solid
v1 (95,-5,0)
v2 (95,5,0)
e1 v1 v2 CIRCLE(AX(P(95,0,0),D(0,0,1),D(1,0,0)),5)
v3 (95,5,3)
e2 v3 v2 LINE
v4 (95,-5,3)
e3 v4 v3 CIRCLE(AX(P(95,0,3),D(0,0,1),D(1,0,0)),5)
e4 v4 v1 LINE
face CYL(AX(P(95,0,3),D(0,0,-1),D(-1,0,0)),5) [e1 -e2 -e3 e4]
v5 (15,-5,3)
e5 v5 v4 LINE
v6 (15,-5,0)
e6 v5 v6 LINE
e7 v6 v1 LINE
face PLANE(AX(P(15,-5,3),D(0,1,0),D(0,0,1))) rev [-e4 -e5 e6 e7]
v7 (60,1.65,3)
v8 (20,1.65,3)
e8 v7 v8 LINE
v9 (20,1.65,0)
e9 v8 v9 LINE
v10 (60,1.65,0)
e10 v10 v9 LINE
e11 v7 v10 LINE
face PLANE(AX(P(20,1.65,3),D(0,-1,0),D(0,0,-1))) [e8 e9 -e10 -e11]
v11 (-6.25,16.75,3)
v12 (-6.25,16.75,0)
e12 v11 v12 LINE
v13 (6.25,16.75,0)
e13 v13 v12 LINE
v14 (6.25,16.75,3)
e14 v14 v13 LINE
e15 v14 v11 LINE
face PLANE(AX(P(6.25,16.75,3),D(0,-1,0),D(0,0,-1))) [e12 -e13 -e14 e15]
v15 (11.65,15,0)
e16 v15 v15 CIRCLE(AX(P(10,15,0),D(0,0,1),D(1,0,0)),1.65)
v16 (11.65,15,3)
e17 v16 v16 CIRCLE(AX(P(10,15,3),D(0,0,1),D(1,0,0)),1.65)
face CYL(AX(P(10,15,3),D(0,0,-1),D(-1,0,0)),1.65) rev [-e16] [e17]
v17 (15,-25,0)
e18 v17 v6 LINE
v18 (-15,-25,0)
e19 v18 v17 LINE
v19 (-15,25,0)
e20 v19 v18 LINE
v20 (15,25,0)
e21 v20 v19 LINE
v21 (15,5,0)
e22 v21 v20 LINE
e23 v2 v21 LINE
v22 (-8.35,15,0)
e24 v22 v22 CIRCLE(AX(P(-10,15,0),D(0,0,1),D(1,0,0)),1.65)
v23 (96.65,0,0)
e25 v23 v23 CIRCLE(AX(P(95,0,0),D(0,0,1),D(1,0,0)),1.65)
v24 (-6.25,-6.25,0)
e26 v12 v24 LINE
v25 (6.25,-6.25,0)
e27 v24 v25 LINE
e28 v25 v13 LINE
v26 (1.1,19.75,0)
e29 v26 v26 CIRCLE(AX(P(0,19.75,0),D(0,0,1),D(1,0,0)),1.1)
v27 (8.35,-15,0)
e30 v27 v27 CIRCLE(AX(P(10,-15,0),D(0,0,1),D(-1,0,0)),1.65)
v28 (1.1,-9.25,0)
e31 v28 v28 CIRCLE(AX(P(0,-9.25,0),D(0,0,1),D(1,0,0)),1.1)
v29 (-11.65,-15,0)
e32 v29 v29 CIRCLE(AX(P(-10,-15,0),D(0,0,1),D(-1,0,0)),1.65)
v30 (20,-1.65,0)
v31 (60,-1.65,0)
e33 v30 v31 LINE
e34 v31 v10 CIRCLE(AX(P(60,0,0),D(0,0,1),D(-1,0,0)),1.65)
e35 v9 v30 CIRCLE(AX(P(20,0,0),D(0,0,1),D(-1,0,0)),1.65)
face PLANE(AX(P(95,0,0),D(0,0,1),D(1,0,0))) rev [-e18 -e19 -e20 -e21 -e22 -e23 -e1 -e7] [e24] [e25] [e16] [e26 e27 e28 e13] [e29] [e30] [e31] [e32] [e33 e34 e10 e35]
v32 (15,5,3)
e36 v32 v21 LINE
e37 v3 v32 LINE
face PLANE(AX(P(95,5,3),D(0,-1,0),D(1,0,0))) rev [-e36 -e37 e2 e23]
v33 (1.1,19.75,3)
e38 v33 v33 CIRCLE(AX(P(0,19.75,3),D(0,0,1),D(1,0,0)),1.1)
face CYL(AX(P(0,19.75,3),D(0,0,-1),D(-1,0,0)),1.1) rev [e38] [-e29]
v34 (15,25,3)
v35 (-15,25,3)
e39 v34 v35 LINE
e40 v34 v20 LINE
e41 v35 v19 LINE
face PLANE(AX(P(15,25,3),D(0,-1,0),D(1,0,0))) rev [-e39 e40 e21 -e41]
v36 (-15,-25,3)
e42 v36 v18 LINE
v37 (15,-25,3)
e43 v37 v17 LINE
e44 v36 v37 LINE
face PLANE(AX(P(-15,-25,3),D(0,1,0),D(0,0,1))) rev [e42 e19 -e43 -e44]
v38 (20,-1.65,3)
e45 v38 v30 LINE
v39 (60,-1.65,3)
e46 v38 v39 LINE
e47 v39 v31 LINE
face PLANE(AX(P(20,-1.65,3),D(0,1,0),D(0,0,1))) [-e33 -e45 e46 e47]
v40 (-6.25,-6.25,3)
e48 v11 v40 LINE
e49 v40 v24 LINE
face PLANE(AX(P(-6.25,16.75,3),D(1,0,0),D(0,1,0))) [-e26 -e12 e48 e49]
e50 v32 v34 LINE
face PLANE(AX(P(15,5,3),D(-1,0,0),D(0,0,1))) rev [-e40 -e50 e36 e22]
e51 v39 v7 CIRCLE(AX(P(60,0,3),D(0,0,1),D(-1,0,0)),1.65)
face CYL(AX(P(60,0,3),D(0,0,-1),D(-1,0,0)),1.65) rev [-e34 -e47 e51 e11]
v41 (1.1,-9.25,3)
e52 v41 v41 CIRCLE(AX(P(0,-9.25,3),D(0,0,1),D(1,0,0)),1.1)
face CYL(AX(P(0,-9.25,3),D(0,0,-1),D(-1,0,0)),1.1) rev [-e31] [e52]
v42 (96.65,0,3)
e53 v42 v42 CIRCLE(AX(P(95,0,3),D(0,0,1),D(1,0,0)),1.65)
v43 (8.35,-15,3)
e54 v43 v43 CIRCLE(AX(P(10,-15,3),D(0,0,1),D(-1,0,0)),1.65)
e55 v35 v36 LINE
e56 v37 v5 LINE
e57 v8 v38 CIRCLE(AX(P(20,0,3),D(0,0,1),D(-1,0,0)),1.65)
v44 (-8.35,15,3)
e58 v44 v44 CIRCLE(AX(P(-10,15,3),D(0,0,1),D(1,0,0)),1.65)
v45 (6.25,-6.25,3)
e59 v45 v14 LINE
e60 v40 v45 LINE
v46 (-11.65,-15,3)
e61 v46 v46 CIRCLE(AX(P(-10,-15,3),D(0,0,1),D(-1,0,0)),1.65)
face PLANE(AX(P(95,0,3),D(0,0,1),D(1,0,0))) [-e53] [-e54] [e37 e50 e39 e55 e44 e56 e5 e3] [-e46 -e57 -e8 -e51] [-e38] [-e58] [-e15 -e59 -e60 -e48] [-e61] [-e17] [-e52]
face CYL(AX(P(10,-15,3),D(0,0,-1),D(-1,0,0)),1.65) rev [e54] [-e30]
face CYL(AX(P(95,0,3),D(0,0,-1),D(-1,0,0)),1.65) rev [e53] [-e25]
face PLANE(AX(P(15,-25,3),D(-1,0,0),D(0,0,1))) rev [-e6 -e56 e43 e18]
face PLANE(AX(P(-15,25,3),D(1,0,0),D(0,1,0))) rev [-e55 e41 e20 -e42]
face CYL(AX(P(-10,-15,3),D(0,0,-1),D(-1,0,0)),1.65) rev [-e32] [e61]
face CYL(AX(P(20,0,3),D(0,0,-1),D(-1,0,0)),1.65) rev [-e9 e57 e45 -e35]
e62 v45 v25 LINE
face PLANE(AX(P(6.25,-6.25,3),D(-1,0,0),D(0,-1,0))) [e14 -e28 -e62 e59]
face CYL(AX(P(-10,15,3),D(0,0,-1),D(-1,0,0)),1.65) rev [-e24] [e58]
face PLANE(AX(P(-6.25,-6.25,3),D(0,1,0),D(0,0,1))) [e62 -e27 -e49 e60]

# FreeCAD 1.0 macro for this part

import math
import FreeCAD as App
import Part
import Sketcher

V = App.Vector


def add_polygon(sketch, points):
    """Adds a closed chain of lines whose ends are joined by coincident constraints."""
    first, n = sketch.GeometryCount, len(points)
    for a, b in zip(points, points[1:] + points[:1]):
        sketch.addGeometry(Part.LineSegment(App.Vector(*a, 0), App.Vector(*b, 0)), False)
    for i in range(n):
        sketch.addConstraint(Sketcher.Constraint("Coincident", first + i, 2, first + (i + 1) % n, 1))

doc = App.newDocument("Part")
body = doc.addObject("PartDesign::Body", "Body")

# Sketch on XY plane
sketch1 = doc.addObject("Sketcher::SketchObject", "Sketch")
body.addObject(sketch1)
sketch1.AttachmentSupport = (doc.XY_Plane, [""])
sketch1.MapMode = "FlatFace"
sketch1.addGeometry(Part.LineSegment(V(15, -25, 0), V(15, -5, 0)), False)  # 0
sketch1.addGeometry(Part.LineSegment(V(15, -5, 0), V(95, -5, 0)), False)  # 1
sketch1.addGeometry(Part.ArcOfCircle(Part.Circle(V(95, 0, 0), V(0, 0, 1), 5), math.radians(-90), math.radians(90)), False)  # 2
sketch1.addGeometry(Part.LineSegment(V(95, 5, 0), V(15, 5, 0)), False)  # 3
sketch1.addGeometry(Part.LineSegment(V(15, 5, 0), V(15, 25, 0)), False)  # 4
sketch1.addGeometry(Part.LineSegment(V(15, 25, 0), V(-15, 25, 0)), False)  # 5
sketch1.addGeometry(Part.LineSegment(V(-15, 25, 0), V(-15, -25, 0)), False)  # 6
sketch1.addGeometry(Part.LineSegment(V(-15, -25, 0), V(15, -25, 0)), False)  # 7
sketch1.addGeometry(Part.Circle(V(-10, -15, 0), V(0, 0, 1), 1.65), False)  # 8
sketch1.addGeometry(Part.Circle(V(10, -15, 0), V(0, 0, 1), 1.65), False)  # 9
sketch1.addGeometry(Part.Circle(V(0, -9.25, 0), V(0, 0, 1), 1.1), False)  # 10
sketch1.addGeometry(Part.LineSegment(V(60, -1.65, 0), V(20, -1.65, 0)), False)  # 11
sketch1.addGeometry(Part.ArcOfCircle(Part.Circle(V(20, 0, 0), V(0, 0, 1), 1.65), math.radians(90), math.radians(270)), False)  # 12
sketch1.addGeometry(Part.LineSegment(V(20, 1.65, 0), V(60, 1.65, 0)), False)  # 13
sketch1.addGeometry(Part.ArcOfCircle(Part.Circle(V(60, 0, 0), V(0, 0, 1), 1.65), math.radians(-90), math.radians(90)), False)  # 14
sketch1.addGeometry(Part.Circle(V(95, 0, 0), V(0, 0, 1), 1.65), False)  # 15
add_polygon(sketch1, [(6.25, -6.25), (-6.25, -6.25), (-6.25, 16.75), (6.25, 16.75)])  # lines 16-19
sketch1.addGeometry(Part.Circle(V(-10, 15, 0), V(0, 0, 1), 1.65), False)  # 20
sketch1.addGeometry(Part.Circle(V(10, 15, 0), V(0, 0, 1), 1.65), False)  # 21
sketch1.addGeometry(Part.Circle(V(0, 19.75, 0), V(0, 0, 1), 1.1), False)  # 22
sketch1.addConstraint([
    Sketcher.Constraint("Coincident", 0, 2, 1, 1),
    Sketcher.Constraint("Tangent", 1, 2, 2, 1),
    Sketcher.Constraint("Tangent", 2, 2, 3, 1),
    Sketcher.Constraint("Coincident", 3, 2, 4, 1),
    Sketcher.Constraint("Coincident", 4, 2, 5, 1),
    Sketcher.Constraint("Coincident", 5, 2, 6, 1),
    Sketcher.Constraint("Coincident", 6, 2, 7, 1),
    Sketcher.Constraint("Coincident", 7, 2, 0, 1),
    Sketcher.Constraint("Tangent", 11, 2, 12, 2),
    Sketcher.Constraint("Tangent", 12, 1, 13, 1),
    Sketcher.Constraint("Tangent", 13, 2, 14, 2),
    Sketcher.Constraint("Tangent", 14, 1, 11, 1),
    Sketcher.Constraint("Vertical", 0),
    Sketcher.Constraint("Horizontal", 1),
    Sketcher.Constraint("Horizontal", 3),
    Sketcher.Constraint("Vertical", 4),
    Sketcher.Constraint("Horizontal", 5),
    Sketcher.Constraint("Vertical", 6),
    Sketcher.Constraint("Horizontal", 7),
    Sketcher.Constraint("Horizontal", 11),
    Sketcher.Constraint("Horizontal", 13),
    Sketcher.Constraint("Horizontal", 16),
    Sketcher.Constraint("Vertical", 17),
    Sketcher.Constraint("Horizontal", 18),
    Sketcher.Constraint("Vertical", 19),
    Sketcher.Constraint("Coincident", 15, 3, 2, 3),
    Sketcher.Constraint("Equal", 8, 9),
    Sketcher.Constraint("Equal", 9, 12),
    Sketcher.Constraint("Equal", 14, 15),
    Sketcher.Constraint("Equal", 15, 20),
    Sketcher.Constraint("Equal", 20, 21),
    Sketcher.Constraint("Equal", 10, 22),
    Sketcher.Constraint("Symmetric", 9, 3, 20, 3, -1, 1),
    Sketcher.Constraint("Symmetric", 8, 3, 21, 3, -1, 1),
    Sketcher.Constraint("Symmetric", 4, 2, 6, 2, -1, 1),
    Sketcher.Constraint("Symmetric", 8, 3, 9, 3, -2),
    Sketcher.Constraint("Symmetric", 0, 2, 3, 2, -1),
    Sketcher.Constraint("PointOnObject", 10, 3, -2),
    Sketcher.Constraint("PointOnObject", 12, 3, -1),
    Sketcher.Constraint("PointOnObject", 22, 3, -2),
    Sketcher.Constraint("Radius", 2, 5.0),
    Sketcher.Constraint("Diameter", 8, 3.3),
    Sketcher.Constraint("Diameter", 10, 2.2),
    Sketcher.Constraint("DistanceX", 1, 1, 1, 2, 80.0),
    Sketcher.Constraint("DistanceX", 5, 2, 5, 1, 30.0),
    Sketcher.Constraint("DistanceX", 11, 2, 11, 1, 40.0),
    Sketcher.Constraint("DistanceY", 0, 1, 0, 2, 20.0),
    Sketcher.Constraint("DistanceY", 17, 1, 17, 2, 23.0),
    Sketcher.Constraint("DistanceX", 16, 2, 16, 1, 12.5),
    Sketcher.Constraint("DistanceX", 8, 3, -1, 1, 10.0),
    Sketcher.Constraint("DistanceY", 8, 3, -1, 1, 15.0),
    Sketcher.Constraint("DistanceX", -1, 1, 12, 3, 20.0),
    Sketcher.Constraint("DistanceY", 10, 3, 22, 3, 29.0),
    Sketcher.Constraint("DistanceY", 10, 3, 16, 2, 3.0),
    Sketcher.Constraint("DistanceY", 10, 3, -1, 1, 9.25),
    Sketcher.Constraint("DistanceX", 16, 2, -1, 1, 6.25),
])
pad1 = doc.addObject("PartDesign::Pad", "Pad")
body.addObject(pad1)
pad1.Profile = sketch1
pad1.Length = 3

doc.recompute()
